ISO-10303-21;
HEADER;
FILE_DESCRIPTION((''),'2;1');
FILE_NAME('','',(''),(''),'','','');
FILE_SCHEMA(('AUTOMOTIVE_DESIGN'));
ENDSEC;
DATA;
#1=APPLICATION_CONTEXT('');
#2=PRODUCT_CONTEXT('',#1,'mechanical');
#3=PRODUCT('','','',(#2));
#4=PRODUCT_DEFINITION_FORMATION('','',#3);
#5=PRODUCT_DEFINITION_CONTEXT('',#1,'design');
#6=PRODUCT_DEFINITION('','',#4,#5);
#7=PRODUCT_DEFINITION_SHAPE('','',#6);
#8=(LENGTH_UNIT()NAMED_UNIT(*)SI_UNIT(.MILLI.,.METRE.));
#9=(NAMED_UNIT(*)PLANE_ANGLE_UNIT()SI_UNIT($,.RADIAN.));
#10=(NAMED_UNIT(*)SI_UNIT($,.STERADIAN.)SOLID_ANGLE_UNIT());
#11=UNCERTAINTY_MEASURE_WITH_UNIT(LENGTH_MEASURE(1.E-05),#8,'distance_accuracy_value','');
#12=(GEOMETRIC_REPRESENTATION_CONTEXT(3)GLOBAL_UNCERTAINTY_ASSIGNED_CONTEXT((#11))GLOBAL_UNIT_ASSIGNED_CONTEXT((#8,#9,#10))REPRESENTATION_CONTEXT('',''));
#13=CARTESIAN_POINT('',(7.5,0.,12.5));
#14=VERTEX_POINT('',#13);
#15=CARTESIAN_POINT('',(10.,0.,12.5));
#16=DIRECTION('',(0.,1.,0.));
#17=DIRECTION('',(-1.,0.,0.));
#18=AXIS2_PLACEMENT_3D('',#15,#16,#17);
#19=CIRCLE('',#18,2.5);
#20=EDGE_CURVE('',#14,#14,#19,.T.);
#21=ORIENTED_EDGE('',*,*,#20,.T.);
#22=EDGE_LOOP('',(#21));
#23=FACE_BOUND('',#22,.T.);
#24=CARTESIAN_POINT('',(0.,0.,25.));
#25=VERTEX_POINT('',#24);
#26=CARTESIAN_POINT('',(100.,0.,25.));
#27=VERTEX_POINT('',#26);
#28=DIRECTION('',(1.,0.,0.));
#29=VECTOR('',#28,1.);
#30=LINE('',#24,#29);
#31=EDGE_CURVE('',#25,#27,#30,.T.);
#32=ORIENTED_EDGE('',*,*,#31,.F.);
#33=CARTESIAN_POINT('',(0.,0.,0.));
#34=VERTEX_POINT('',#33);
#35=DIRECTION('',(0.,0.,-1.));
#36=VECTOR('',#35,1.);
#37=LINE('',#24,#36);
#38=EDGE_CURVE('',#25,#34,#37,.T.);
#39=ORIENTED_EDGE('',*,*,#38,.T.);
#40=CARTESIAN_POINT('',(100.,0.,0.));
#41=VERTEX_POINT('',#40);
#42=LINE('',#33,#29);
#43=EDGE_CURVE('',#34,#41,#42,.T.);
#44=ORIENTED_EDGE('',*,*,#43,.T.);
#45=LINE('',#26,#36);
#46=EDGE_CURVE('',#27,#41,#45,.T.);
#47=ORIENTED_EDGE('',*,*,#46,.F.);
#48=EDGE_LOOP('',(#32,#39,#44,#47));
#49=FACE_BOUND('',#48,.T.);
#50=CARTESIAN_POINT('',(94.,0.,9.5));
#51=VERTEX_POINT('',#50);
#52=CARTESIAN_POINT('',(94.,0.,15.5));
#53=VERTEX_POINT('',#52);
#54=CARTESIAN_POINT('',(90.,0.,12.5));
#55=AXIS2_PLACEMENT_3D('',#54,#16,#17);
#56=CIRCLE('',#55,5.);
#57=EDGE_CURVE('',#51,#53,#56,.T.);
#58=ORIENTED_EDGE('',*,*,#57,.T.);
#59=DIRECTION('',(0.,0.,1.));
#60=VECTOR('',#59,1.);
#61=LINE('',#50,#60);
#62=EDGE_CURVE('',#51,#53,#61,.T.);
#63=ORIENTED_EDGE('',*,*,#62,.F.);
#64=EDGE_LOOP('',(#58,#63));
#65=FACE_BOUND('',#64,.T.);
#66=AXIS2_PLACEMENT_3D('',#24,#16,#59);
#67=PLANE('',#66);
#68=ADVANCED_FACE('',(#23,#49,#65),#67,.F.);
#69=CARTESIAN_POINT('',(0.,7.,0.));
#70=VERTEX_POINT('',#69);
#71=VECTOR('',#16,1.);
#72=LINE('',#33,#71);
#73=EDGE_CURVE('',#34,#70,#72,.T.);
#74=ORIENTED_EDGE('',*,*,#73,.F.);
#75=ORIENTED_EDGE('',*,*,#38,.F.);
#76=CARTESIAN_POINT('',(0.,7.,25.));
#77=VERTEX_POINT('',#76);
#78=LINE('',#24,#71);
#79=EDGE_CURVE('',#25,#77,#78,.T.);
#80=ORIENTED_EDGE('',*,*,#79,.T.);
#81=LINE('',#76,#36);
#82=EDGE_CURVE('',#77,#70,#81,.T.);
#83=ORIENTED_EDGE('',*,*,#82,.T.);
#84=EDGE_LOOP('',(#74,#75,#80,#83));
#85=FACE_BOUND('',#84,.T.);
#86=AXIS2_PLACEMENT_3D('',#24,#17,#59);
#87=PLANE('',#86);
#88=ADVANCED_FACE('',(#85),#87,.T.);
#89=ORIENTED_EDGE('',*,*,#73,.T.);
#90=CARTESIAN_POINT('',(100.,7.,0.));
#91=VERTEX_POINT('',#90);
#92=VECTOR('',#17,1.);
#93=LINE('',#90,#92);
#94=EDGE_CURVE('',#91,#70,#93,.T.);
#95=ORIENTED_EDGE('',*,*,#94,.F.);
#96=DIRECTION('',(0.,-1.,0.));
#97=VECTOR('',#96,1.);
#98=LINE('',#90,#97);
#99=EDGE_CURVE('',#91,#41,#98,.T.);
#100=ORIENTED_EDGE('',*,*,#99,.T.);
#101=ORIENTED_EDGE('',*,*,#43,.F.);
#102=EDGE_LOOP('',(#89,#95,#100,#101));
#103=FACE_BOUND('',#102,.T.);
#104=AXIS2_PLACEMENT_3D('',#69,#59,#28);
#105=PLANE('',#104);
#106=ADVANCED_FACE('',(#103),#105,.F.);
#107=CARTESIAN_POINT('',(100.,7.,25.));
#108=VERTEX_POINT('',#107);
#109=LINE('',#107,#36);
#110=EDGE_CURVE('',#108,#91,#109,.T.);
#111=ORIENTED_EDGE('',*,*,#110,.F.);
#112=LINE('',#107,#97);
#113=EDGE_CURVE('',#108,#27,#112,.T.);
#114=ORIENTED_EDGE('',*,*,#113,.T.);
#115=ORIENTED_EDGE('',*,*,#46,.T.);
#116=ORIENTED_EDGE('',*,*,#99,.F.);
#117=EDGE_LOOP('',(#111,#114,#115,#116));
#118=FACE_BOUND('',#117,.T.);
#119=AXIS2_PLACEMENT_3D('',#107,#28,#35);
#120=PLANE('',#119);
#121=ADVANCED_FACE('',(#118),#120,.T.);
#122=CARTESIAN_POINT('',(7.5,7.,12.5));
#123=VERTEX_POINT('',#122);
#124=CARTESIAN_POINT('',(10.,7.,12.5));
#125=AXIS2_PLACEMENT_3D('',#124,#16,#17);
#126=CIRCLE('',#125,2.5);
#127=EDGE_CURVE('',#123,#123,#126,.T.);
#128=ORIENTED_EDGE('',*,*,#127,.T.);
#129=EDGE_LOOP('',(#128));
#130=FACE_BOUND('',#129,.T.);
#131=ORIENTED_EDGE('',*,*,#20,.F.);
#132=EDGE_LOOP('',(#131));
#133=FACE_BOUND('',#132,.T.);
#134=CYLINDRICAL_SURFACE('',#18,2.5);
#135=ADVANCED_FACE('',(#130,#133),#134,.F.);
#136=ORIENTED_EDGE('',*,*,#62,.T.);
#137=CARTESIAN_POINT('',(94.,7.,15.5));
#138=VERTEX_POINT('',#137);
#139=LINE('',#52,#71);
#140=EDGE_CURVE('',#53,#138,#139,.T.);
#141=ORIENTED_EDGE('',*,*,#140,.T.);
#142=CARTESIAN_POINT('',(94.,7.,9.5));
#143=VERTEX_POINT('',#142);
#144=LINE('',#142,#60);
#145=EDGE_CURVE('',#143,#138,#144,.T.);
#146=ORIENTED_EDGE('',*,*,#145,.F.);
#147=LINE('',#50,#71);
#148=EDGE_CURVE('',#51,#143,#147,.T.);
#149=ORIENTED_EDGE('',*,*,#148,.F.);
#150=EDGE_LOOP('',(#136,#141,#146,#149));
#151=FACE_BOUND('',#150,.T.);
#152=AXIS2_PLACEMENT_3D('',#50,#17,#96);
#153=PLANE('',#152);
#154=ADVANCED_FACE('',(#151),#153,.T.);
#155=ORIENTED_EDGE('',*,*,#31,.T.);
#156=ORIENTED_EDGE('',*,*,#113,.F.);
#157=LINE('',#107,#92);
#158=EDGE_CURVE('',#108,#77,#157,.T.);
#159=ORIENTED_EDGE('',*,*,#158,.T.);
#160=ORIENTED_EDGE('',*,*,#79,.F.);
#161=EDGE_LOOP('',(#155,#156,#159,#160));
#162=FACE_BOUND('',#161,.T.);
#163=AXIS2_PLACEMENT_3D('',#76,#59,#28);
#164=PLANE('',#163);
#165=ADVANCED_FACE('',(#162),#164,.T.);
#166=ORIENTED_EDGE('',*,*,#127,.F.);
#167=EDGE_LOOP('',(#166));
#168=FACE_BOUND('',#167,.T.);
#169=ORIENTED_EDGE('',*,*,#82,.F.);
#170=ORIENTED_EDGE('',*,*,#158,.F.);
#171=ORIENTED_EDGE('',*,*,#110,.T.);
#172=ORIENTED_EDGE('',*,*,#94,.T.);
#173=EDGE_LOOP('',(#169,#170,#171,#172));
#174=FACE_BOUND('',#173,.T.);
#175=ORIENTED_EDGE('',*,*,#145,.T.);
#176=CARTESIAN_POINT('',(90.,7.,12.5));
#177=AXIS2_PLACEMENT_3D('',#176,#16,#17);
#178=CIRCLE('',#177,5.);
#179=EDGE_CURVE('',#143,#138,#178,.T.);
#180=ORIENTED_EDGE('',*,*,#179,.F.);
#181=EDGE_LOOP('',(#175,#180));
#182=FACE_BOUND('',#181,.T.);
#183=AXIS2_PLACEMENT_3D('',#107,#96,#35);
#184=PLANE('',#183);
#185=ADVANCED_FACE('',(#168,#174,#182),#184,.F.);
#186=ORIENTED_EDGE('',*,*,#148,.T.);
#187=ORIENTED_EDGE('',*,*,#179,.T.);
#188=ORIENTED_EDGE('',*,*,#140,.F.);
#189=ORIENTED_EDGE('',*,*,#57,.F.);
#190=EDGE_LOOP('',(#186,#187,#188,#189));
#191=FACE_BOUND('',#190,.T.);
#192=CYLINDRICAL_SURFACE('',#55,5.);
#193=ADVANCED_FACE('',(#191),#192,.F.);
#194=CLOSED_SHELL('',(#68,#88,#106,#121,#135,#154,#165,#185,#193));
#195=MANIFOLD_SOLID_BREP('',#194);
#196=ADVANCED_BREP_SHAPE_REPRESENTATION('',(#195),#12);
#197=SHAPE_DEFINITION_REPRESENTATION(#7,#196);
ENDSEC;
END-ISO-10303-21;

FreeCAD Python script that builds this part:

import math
import FreeCAD as App
import Part
import Sketcher
from FreeCAD import Vector
Q = App.Units.Quantity

doc = App.newDocument("Part")
body = doc.addObject("PartDesign::Body", "Body")

sketch1 = body.newObject("Sketcher::SketchObject", "Sketch")
sketch1.AttachmentSupport = (doc.getObject("XY_Plane"), [""])
sketch1.MapMode = "FlatFace"
sketch1.addGeometry(Part.LineSegment(Vector(0, 7, 0), Vector(0, 0, 0)), False)
sketch1.addGeometry(Part.LineSegment(Vector(0, 0, 0), Vector(100, 0, 0)), False)
sketch1.addGeometry(Part.LineSegment(Vector(100, 0, 0), Vector(100, 7, 0)), False)
sketch1.addGeometry(Part.LineSegment(Vector(100, 7, 0), Vector(0, 7, 0)), False)
sketch1.addConstraint(Sketcher.Constraint("Coincident", 0, 2, 1, 1))
sketch1.addConstraint(Sketcher.Constraint("Coincident", 1, 2, 2, 1))
sketch1.addConstraint(Sketcher.Constraint("Coincident", 2, 2, 3, 1))
sketch1.addConstraint(Sketcher.Constraint("Coincident", 3, 2, 0, 1))
sketch1.addConstraint(Sketcher.Constraint("Vertical", 0))
sketch1.addConstraint(Sketcher.Constraint("Horizontal", 1))
sketch1.addConstraint(Sketcher.Constraint("Vertical", 2))
sketch1.addConstraint(Sketcher.Constraint("Horizontal", 3))
sketch1.addConstraint(Sketcher.Constraint("Coincident", 0, 2, -1, 1))
sketch1.addConstraint(Sketcher.Constraint("DistanceX", 1, 1, 1, 2, Q("100 mm")))
sketch1.addConstraint(Sketcher.Constraint("DistanceY", 0, 2, 0, 1, Q("7 mm")))
pad1 = body.newObject("PartDesign::Pad", "Pad")
pad1.Profile = sketch1
pad1.Length = 25

sketch2 = body.newObject("Sketcher::SketchObject", "Sketch001")
sketch2.AttachmentSupport = (doc.getObject("XZ_Plane"), [""])
sketch2.MapMode = "FlatFace"
sketch2.AttachmentOffset = App.Placement(Vector(0, 0, -7), App.Rotation())
sketch2.addGeometry(Part.LineSegment(Vector(94, 15.5, 0), Vector(94, 9.5, 0)), False)
sketch2.addGeometry(Part.ArcOfCircle(Part.Circle(Vector(90, 12.5, 0), Vector(0, 0, 1), 5), math.radians(36.869898), math.radians(323.130102)), False)
sketch2.addConstraint(Sketcher.Constraint("Coincident", 0, 1, 1, 1))
sketch2.addConstraint(Sketcher.Constraint("Coincident", 1, 2, 0, 2))
sketch2.addConstraint(Sketcher.Constraint("Vertical", 0))
sketch2.addConstraint(Sketcher.Constraint("Radius", 1, Q("5 mm")))
sketch2.addConstraint(Sketcher.Constraint("DistanceY", 0, 2, 0, 1, Q("6 mm")))
sketch2.addConstraint(Sketcher.Constraint("DistanceX", -1, 1, 1, 3, Q("90 mm")))
sketch2.addConstraint(Sketcher.Constraint("DistanceY", -1, 1, 1, 3, Q("12.5 mm")))
pocket1 = body.newObject("PartDesign::Pocket", "Pocket")
pocket1.Profile = sketch2
pocket1.Type = "ThroughAll"
pocket1.Reversed = True

sketch3 = body.newObject("Sketcher::SketchObject", "Sketch002")
sketch3.AttachmentSupport = (doc.getObject("XZ_Plane"), [""])
sketch3.MapMode = "FlatFace"
sketch3.AttachmentOffset = App.Placement(Vector(0, 0, -7), App.Rotation())
sketch3.addGeometry(Part.Circle(Vector(10, 12.5, 0), Vector(0, 0, 1), 2.5), False)
sketch3.addConstraint(Sketcher.Constraint("Diameter", 0, Q("5 mm")))
sketch3.addConstraint(Sketcher.Constraint("DistanceX", -1, 1, 0, 3, Q("10 mm")))
sketch3.addConstraint(Sketcher.Constraint("DistanceY", -1, 1, 0, 3, Q("12.5 mm")))
pocket2 = body.newObject("PartDesign::Pocket", "Pocket001")
pocket2.Profile = sketch3
pocket2.Type = "ThroughAll"
pocket2.Reversed = True

doc.recompute()
